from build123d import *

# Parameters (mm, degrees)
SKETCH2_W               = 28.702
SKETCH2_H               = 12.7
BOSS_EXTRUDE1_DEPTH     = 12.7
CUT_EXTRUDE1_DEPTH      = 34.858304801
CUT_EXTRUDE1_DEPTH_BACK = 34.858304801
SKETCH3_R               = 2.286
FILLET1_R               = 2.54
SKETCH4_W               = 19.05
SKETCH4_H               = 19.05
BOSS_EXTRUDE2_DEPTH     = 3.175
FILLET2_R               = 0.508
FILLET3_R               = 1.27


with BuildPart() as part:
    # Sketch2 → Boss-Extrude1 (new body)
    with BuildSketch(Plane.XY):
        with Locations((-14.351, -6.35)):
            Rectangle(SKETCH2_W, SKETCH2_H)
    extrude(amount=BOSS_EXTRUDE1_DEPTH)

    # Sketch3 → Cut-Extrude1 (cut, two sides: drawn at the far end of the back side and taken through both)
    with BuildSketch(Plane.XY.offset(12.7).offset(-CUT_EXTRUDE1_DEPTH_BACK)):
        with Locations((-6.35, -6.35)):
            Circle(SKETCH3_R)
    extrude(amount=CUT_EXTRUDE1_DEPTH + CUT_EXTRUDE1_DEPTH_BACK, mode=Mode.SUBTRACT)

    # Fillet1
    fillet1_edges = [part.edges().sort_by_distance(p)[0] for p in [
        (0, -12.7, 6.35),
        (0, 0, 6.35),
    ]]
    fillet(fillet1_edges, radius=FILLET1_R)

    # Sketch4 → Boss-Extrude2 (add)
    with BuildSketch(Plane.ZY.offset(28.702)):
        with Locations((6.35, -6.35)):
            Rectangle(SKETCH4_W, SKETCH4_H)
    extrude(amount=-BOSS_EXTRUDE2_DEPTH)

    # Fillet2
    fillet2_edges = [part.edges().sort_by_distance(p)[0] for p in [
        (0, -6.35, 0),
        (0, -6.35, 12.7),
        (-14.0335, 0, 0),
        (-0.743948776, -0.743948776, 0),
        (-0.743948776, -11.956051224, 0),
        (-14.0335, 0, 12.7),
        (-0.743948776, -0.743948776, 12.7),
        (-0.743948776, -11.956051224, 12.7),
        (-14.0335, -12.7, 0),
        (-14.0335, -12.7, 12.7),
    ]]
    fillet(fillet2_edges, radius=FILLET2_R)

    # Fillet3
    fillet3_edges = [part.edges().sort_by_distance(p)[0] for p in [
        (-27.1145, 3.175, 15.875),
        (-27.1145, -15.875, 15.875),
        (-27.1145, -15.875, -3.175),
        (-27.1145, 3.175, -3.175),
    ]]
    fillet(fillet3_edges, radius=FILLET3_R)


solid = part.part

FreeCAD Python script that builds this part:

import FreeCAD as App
import Part
import Sketcher

V = App.Vector
Q = App.Units.Quantity


def edges_at(feature, points):
    """Names of the edges that pass closest to the given points."""
    edges = feature.Shape.Edges
    near = lambda p: min(range(len(edges)), key=lambda i: edges[i].distToShape(Part.Vertex(*p))[0])
    return sorted({f"Edge{near(p) + 1}" for p in points})


def add_polygon(sketch, points):
    """Adds a closed chain of lines whose ends are joined by coincident constraints."""
    first, n = sketch.GeometryCount, len(points)
    for a, b in zip(points, points[1:] + points[:1]):
        sketch.addGeometry(Part.LineSegment(App.Vector(*a, 0), App.Vector(*b, 0)), False)
    for i in range(n):
        sketch.addConstraint(Sketcher.Constraint("Coincident", first + i, 2, first + (i + 1) % n, 1))

doc = App.newDocument("Part")
body = doc.addObject("PartDesign::Body", "Body")

# Sketch on XY plane
sketch1 = doc.addObject("Sketcher::SketchObject", "Sketch")
body.addObject(sketch1)
sketch1.AttachmentSupport = (doc.XY_Plane, [""])
sketch1.MapMode = "FlatFace"
add_polygon(sketch1, [(-28.702, 0), (-28.702, -12.7), (0, -12.7), (0, 0)])  # lines 0-3
sketch1.addConstraint([
    Sketcher.Constraint("Vertical", 0),
    Sketcher.Constraint("Horizontal", 1),
    Sketcher.Constraint("Vertical", 2),
    Sketcher.Constraint("Horizontal", 3),
    Sketcher.Constraint("Coincident", 2, 2, -1, 1),
    Sketcher.Constraint("DistanceY", 0, 2, 0, 1, Q("0.5 in")),
    Sketcher.Constraint("DistanceX", 1, 1, 1, 2, Q("1.13 in")),
])
pad1 = doc.addObject("PartDesign::Pad", "Pad")
body.addObject(pad1)
pad1.Profile = sketch1
pad1.Length = Q("0.5 in")

# Sketch on XY plane
sketch2 = doc.addObject("Sketcher::SketchObject", "Sketch001")
body.addObject(sketch2)
sketch2.AttachmentSupport = (doc.XY_Plane, [""])
sketch2.MapMode = "FlatFace"
sketch2.AttachmentOffset = App.Placement(V(0, 0, 0.5 * 25.4), App.Rotation())
sketch2.addGeometry(Part.Circle(V(-6.35, -6.35, 0), V(0, 0, 1), 2.286), False)
sketch2.addConstraint([
    Sketcher.Constraint("Diameter", 0, Q("0.18 in")),
    Sketcher.Constraint("DistanceX", 0, 3, -1, 1, Q("0.25 in")),
    Sketcher.Constraint("DistanceY", 0, 3, -1, 1, Q("0.25 in")),
])
pocket1 = doc.addObject("PartDesign::Pocket", "Pocket")
body.addObject(pocket1)
pocket1.Profile = sketch2
pocket1.Type = "ThroughAll"
pocket1.Midplane = True
doc.recompute()

fillet = doc.addObject("PartDesign::Fillet", "Fillet")
body.addObject(fillet)
fillet.Base = (pocket1, edges_at(pocket1, [(0, -12.7, 6.35), (0, 0, 6.35)]))
fillet.Radius = Q("0.1 in")

# Sketch on YZ plane
sketch3 = doc.addObject("Sketcher::SketchObject", "Sketch002")
body.addObject(sketch3)
sketch3.AttachmentSupport = (doc.YZ_Plane, [""])
sketch3.MapMode = "FlatFace"
sketch3.AttachmentOffset = App.Placement(V(0, 0, -1.13 * 25.4), App.Rotation())
add_polygon(sketch3, [(3.175, -3.175), (-15.875, -3.175), (-15.875, 15.875), (3.175, 15.875)])  # lines 0-3
sketch3.addConstraint([
    Sketcher.Constraint("Horizontal", 0),
    Sketcher.Constraint("Vertical", 1),
    Sketcher.Constraint("Horizontal", 2),
    Sketcher.Constraint("Vertical", 3),
    Sketcher.Constraint("Equal", 2, 1),
    Sketcher.Constraint("DistanceX", 0, 2, 0, 1, Q("0.75 in")),
    Sketcher.Constraint("DistanceX", 0, 2, -1, 1, Q("0.625 in")),
    Sketcher.Constraint("DistanceY", 0, 2, -1, 1, Q("0.125 in")),
])
pad2 = doc.addObject("PartDesign::Pad", "Pad001")
body.addObject(pad2)
pad2.Profile = sketch3
pad2.Length = Q("0.125 in")
doc.recompute()

fillet2 = doc.addObject("PartDesign::Fillet", "Fillet001")
body.addObject(fillet2)
fillet2.Base = (pad2, edges_at(pad2, [
    (0, -6.35, 0),
    (0, -6.35, 12.7),
    (-14.034, 0, 0),
    (-0.744, -0.744, 0),
    (-0.744, -11.956, 0),
    (-14.034, 0, 12.7),
    (-0.744, -0.744, 12.7),
    (-0.744, -11.956, 12.7),
    (-14.034, -12.7, 0),
    (-14.034, -12.7, 12.7),
]))
fillet2.Radius = Q("0.02 in")
doc.recompute()

fillet3 = doc.addObject("PartDesign::Fillet", "Fillet002")
body.addObject(fillet3)
fillet3.Base = (fillet2, edges_at(fillet2, [
    (-27.114, 3.175, 15.875),
    (-27.114, -15.875, 15.875),
    (-27.114, -15.875, -3.175),
    (-27.114, 3.175, -3.175),
]))
fillet3.Radius = Q("0.05 in")

doc.recompute()
